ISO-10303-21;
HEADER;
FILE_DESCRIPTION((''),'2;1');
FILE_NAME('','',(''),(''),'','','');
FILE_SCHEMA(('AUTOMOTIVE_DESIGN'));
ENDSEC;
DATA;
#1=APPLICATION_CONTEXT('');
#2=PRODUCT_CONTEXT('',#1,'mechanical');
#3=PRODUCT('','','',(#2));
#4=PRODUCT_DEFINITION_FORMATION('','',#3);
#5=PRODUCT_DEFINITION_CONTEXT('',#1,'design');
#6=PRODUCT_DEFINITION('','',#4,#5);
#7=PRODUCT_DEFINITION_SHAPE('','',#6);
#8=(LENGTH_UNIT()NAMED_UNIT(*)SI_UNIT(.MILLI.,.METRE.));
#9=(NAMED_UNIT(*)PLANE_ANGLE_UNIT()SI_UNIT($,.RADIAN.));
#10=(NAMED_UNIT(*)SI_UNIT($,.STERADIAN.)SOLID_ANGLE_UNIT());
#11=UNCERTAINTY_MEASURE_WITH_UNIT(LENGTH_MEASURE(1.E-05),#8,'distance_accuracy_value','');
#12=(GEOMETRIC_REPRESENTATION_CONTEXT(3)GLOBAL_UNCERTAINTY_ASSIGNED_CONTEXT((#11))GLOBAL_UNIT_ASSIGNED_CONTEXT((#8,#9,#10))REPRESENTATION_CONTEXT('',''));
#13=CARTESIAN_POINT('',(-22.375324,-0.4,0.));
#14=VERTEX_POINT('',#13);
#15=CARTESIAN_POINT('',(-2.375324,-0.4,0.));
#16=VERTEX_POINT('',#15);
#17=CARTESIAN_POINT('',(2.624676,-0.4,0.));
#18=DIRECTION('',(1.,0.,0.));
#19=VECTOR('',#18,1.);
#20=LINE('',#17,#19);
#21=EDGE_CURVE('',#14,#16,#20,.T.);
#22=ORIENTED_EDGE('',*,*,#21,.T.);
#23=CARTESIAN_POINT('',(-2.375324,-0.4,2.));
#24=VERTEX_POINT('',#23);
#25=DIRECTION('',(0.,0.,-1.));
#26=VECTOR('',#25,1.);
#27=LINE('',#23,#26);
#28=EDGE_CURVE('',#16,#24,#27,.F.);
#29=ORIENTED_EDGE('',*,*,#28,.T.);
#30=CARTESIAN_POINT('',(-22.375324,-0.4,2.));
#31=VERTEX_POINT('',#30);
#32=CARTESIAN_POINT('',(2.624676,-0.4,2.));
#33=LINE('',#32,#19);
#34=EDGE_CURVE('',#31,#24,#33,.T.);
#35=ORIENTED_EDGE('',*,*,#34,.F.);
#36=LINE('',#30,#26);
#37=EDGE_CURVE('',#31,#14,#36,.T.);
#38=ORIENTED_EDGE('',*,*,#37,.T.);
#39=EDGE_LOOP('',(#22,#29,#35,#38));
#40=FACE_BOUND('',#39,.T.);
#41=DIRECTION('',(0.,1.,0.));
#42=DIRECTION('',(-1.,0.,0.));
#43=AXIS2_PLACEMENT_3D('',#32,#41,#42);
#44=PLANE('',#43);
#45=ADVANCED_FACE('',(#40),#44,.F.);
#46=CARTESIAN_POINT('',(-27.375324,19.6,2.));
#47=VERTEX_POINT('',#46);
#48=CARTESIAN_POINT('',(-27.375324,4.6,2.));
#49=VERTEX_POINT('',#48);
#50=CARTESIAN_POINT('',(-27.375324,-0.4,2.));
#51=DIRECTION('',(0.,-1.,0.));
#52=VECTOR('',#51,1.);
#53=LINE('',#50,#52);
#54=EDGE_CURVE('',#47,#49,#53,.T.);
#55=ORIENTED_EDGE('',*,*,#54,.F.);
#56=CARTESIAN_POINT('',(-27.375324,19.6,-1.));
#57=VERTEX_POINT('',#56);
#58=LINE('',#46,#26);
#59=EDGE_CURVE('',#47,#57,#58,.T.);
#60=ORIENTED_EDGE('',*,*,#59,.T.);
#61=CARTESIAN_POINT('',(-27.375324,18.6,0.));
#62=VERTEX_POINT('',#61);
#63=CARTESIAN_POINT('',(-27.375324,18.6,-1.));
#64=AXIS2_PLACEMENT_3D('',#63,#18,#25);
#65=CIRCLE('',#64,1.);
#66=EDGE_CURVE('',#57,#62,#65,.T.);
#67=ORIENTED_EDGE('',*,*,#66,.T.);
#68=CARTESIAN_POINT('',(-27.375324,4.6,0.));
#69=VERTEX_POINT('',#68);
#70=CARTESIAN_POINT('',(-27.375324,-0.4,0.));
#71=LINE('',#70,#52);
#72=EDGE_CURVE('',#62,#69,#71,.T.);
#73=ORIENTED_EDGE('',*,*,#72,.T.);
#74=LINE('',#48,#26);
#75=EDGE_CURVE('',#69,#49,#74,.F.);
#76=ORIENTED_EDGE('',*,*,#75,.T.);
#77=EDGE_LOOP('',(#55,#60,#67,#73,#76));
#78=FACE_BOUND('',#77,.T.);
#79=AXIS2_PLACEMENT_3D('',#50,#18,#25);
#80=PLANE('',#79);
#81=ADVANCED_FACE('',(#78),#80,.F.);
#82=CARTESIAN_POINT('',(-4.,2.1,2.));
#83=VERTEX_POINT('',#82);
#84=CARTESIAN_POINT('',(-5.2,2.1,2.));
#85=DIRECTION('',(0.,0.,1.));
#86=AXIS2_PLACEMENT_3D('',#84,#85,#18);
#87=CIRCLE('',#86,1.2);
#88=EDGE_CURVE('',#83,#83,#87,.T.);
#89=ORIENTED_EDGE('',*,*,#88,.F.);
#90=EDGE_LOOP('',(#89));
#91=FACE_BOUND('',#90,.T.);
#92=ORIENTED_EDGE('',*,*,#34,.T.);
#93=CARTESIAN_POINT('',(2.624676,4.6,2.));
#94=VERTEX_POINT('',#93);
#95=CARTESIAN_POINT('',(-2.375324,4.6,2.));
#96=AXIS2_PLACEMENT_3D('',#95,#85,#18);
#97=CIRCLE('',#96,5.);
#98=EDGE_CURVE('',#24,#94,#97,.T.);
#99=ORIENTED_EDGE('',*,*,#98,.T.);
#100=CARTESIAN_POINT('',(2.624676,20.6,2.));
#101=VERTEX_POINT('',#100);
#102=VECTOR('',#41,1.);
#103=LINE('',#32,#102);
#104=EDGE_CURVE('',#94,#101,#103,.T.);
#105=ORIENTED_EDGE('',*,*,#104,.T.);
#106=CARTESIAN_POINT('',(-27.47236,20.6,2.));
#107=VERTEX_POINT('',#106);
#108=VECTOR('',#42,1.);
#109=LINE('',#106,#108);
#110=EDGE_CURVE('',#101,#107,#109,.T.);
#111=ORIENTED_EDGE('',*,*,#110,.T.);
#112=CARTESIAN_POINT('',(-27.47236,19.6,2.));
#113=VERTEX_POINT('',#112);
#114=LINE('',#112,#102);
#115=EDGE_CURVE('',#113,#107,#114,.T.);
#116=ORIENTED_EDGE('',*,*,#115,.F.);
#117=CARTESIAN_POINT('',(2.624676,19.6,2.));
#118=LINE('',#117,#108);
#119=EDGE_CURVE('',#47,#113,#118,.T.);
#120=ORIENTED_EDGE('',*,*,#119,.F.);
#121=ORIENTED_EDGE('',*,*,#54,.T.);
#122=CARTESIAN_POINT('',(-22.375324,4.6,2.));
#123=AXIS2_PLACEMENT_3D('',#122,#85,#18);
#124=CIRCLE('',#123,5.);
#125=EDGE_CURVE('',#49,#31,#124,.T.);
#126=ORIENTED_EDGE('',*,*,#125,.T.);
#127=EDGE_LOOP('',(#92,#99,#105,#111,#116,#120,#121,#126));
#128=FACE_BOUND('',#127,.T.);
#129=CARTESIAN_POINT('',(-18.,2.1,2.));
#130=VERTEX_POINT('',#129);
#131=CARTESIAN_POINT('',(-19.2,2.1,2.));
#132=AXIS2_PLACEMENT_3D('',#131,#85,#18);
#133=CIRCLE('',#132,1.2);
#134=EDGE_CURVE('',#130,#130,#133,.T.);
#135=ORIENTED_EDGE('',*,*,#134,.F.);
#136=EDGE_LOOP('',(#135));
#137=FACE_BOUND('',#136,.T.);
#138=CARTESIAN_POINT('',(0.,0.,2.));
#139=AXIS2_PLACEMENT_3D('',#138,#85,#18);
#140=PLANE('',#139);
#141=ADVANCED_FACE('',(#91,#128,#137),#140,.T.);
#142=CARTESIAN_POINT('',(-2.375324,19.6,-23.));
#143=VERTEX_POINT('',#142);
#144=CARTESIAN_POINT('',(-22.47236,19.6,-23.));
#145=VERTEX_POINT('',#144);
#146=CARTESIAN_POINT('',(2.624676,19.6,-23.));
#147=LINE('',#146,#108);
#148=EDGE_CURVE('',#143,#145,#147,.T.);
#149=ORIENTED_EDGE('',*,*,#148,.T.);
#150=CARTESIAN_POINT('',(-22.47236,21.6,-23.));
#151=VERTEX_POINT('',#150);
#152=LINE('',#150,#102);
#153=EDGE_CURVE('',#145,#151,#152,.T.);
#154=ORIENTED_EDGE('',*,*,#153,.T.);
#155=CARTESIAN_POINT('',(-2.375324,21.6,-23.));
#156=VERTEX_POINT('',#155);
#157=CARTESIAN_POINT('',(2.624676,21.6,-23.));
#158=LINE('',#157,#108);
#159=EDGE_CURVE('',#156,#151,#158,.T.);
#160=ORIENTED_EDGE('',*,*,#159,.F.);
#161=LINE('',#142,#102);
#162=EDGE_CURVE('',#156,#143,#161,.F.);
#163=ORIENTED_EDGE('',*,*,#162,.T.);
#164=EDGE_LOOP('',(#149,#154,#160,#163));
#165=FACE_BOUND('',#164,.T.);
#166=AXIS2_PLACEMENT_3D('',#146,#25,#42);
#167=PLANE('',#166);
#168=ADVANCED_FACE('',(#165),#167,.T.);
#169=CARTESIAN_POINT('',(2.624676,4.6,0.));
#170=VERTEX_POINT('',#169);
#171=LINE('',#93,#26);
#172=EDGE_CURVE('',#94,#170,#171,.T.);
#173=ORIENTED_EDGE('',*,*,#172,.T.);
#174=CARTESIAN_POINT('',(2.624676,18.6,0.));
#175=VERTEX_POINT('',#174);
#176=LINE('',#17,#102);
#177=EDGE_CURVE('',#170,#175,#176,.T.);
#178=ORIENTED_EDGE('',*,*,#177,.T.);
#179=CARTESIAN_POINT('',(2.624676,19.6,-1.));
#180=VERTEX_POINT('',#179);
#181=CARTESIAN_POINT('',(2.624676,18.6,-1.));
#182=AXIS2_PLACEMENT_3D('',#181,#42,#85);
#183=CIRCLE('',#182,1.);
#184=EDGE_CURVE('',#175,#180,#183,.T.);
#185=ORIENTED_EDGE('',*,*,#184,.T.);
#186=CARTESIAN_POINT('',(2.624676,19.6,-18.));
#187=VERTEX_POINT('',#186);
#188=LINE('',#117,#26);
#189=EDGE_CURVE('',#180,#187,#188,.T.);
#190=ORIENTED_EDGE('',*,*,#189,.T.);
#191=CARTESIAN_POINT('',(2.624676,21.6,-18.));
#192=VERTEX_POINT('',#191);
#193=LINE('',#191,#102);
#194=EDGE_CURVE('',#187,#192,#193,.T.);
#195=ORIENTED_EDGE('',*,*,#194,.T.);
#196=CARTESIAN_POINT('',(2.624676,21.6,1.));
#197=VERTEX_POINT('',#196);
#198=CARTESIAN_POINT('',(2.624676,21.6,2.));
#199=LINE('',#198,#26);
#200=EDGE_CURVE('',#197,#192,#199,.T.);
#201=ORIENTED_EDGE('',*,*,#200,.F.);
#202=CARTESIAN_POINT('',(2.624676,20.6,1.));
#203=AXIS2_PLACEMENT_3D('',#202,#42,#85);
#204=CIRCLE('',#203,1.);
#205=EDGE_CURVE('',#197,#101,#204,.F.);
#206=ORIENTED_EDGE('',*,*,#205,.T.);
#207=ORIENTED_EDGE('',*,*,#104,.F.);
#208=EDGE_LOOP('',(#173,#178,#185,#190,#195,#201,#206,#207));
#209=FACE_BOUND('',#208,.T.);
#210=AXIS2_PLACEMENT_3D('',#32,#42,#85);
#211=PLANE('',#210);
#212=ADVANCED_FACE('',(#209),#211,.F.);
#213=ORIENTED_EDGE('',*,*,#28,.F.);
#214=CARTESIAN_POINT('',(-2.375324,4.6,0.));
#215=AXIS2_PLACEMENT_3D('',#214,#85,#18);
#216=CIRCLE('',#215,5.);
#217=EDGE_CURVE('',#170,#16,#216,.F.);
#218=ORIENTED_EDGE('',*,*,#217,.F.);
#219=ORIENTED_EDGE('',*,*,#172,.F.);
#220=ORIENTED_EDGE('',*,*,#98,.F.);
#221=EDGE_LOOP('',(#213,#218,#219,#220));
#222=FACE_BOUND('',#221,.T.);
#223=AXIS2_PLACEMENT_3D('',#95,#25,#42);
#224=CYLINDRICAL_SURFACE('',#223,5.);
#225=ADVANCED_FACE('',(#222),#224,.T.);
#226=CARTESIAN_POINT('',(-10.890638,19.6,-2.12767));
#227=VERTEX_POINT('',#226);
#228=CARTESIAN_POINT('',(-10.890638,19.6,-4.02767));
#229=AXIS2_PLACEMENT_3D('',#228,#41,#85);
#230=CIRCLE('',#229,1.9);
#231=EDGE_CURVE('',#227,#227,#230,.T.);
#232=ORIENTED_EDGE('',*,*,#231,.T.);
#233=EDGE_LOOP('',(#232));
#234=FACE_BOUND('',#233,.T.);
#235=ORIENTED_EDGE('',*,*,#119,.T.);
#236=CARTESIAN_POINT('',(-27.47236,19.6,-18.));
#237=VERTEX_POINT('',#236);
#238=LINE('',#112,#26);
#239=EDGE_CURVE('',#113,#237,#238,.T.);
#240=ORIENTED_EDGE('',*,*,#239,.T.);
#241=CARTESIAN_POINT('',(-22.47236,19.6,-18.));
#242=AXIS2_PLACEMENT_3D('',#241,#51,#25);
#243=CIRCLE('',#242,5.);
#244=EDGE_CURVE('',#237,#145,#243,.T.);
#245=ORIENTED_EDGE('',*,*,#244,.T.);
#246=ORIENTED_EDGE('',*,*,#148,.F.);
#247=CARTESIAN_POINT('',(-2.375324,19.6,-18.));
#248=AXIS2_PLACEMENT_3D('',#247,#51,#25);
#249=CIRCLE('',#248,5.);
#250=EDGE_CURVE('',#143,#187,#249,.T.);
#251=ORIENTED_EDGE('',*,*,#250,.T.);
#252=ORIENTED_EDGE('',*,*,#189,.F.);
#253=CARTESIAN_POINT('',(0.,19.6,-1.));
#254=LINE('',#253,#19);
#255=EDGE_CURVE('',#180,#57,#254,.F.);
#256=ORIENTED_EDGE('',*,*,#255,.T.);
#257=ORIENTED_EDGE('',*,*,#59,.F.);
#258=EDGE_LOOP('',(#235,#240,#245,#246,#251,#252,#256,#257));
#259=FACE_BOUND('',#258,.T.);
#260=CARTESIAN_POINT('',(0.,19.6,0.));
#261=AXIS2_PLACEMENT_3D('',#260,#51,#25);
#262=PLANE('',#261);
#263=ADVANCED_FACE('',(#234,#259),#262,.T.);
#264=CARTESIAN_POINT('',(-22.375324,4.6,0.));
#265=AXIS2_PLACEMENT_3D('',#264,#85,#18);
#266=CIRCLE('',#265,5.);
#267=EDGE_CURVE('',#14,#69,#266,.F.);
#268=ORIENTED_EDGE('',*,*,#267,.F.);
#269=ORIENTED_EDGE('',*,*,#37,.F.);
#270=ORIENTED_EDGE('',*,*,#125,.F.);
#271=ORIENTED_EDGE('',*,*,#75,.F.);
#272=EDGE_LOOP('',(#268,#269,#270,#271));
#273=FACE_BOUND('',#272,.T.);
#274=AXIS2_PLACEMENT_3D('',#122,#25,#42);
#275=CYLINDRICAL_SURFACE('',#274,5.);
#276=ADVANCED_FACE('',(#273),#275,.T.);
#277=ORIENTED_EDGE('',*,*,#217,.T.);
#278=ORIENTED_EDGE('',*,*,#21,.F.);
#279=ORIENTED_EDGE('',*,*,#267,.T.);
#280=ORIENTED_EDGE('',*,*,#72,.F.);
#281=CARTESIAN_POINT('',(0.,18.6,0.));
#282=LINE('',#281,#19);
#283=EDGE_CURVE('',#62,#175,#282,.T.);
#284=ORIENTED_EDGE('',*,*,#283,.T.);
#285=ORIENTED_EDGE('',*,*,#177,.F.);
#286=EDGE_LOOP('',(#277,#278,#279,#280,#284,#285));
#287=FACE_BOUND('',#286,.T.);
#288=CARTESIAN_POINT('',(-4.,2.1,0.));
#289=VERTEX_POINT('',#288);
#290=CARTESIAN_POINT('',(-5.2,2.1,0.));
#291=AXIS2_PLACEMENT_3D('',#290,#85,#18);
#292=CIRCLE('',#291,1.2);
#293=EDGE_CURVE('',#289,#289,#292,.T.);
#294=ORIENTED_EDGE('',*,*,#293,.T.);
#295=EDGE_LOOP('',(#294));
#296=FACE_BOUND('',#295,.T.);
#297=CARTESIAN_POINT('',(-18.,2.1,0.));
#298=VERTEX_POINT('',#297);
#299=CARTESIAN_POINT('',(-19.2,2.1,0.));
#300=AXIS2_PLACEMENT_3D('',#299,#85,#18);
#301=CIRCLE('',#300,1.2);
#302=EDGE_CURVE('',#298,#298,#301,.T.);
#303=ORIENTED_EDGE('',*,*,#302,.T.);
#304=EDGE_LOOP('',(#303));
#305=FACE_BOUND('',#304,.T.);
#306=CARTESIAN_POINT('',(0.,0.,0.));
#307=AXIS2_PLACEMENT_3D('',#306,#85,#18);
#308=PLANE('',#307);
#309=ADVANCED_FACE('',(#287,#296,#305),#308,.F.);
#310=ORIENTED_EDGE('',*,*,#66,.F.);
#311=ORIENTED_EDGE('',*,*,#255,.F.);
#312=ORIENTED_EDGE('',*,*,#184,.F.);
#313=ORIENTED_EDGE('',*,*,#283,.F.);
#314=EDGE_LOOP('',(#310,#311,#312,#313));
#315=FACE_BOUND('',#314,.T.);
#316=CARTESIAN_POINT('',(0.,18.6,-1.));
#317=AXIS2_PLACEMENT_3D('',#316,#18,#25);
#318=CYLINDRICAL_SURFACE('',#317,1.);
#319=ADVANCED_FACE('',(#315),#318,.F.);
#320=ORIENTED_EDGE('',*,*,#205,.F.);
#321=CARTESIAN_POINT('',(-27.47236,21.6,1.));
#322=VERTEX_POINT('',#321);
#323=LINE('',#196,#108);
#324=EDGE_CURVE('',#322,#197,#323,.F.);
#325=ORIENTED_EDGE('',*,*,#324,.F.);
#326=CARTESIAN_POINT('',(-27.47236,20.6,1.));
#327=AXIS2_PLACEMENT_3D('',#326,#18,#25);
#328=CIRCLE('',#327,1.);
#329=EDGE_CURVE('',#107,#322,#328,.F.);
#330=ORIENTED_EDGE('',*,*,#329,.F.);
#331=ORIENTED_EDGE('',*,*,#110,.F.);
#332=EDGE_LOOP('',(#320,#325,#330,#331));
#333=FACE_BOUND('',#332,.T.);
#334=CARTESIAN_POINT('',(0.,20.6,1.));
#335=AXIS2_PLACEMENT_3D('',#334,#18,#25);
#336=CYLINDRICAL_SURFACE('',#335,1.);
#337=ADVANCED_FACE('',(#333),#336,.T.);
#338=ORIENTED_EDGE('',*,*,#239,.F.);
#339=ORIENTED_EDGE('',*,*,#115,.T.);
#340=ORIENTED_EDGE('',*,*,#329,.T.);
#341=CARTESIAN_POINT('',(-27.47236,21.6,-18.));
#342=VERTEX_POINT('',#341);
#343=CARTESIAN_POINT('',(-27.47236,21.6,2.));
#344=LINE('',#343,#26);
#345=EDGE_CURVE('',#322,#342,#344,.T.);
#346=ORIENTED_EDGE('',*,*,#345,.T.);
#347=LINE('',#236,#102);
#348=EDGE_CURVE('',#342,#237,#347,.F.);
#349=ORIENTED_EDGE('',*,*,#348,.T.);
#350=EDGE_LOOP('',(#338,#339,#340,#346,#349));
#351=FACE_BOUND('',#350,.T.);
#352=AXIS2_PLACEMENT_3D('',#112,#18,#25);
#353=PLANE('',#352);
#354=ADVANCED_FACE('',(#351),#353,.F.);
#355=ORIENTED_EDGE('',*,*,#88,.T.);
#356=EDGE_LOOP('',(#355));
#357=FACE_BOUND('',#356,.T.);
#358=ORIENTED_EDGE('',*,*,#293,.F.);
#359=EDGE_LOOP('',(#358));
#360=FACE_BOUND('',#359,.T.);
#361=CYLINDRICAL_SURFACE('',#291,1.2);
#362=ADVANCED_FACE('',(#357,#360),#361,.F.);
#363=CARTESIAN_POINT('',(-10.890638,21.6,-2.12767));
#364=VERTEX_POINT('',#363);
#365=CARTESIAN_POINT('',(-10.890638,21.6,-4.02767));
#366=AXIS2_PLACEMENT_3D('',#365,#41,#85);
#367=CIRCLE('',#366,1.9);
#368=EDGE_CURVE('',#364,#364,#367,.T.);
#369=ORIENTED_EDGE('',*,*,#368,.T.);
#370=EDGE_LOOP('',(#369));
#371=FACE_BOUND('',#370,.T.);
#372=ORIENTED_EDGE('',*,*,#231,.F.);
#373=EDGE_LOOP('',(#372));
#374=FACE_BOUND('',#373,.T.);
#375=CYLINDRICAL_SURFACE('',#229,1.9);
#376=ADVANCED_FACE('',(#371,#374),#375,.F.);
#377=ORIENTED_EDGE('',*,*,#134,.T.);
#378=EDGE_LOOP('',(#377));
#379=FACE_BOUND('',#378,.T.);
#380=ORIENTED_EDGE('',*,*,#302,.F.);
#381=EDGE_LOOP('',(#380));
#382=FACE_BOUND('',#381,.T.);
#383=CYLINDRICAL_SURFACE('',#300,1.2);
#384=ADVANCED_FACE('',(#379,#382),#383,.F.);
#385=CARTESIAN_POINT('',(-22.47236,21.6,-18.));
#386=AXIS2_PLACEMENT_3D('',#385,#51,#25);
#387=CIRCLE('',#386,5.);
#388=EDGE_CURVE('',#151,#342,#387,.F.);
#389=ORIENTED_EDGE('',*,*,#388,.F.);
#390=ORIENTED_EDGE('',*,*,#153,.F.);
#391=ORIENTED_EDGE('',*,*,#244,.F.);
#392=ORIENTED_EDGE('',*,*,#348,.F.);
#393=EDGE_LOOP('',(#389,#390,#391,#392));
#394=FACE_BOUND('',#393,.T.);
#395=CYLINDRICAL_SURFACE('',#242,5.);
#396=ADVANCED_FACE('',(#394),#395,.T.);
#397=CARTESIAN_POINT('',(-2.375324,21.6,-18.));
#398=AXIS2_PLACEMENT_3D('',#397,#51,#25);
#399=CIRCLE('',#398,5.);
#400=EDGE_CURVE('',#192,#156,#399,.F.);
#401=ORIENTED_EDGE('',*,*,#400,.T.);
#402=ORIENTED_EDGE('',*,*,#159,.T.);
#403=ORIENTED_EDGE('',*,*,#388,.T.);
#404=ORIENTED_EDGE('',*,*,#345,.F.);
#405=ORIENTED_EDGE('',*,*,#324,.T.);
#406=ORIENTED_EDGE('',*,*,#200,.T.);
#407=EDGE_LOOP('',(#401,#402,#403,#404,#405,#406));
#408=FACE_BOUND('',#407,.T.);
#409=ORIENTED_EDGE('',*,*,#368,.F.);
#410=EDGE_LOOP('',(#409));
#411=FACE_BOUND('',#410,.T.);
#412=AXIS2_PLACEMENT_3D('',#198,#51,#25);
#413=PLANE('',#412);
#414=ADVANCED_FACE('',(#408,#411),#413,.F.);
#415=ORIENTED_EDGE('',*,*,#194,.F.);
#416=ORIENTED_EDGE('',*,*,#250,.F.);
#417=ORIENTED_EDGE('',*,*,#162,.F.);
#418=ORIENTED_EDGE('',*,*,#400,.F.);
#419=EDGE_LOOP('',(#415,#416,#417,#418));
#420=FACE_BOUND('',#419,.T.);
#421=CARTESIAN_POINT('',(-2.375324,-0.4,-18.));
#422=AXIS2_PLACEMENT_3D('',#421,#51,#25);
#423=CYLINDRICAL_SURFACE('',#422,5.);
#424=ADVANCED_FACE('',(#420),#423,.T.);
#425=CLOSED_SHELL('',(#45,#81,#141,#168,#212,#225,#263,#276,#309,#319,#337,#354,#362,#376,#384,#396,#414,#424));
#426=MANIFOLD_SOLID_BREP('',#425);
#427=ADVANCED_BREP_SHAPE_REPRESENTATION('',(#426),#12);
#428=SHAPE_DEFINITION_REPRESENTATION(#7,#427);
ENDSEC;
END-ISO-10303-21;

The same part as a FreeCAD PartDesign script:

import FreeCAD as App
import Part
import Sketcher
from FreeCAD import Vector


def edges_at(feature, points):
    """Names of the edges that pass closest to the given points."""
    edges = feature.Shape.Edges
    near = lambda p: min(range(len(edges)), key=lambda i: edges[i].distToShape(Part.Vertex(*p))[0])
    return sorted({f"Edge{near(p) + 1}" for p in points})

doc = App.newDocument("Part")
body = doc.addObject("PartDesign::Body", "Body")

# Sketch on XY plane
sketch1 = body.newObject("Sketcher::SketchObject", "Sketch")
sketch1.AttachmentSupport = (doc.getObject("XY_Plane"), [""])
sketch1.MapMode = "FlatFace"
sketch1.addGeometry([
    Part.LineSegment(Vector(-27, 22, 0), Vector(-27, 0, 0)),
    Part.LineSegment(Vector(-27, 0, 0), Vector(3, 0, 0)),
    Part.LineSegment(Vector(3, 0, 0), Vector(3, 22, 0)),
    Part.LineSegment(Vector(3, 22, 0), Vector(-27, 22, 0)),
], False)
sketch1.addConstraint([
    Sketcher.Constraint("Coincident", 0, 2, 1, 1),
    Sketcher.Constraint("Coincident", 1, 2, 2, 1),
    Sketcher.Constraint("Coincident", 2, 2, 3, 1),
    Sketcher.Constraint("Coincident", 3, 2, 0, 1),
    Sketcher.Constraint("Vertical", 0),
    Sketcher.Constraint("Horizontal", 1),
    Sketcher.Constraint("Vertical", 2),
    Sketcher.Constraint("Horizontal", 3),
    Sketcher.Constraint("DistanceX", 1, 1, 1, 2, 30.0),
    Sketcher.Constraint("DistanceY", 0, 2, 0, 1, 22.0),
    Sketcher.Constraint("DistanceY", 0, 2, -1, 1, 0.4),
    Sketcher.Constraint("DistanceX", 0, 2, -1, 1, 27.375324),
])
pad1 = body.newObject("PartDesign::Pad", "Pad")
pad1.Profile = sketch1
pad1.Length = 2

# Sketch on XZ plane
sketch2 = body.newObject("Sketcher::SketchObject", "Sketch001")
sketch2.AttachmentSupport = (doc.getObject("XZ_Plane"), [""])
sketch2.MapMode = "FlatFace"
sketch2.AttachmentOffset = App.Placement(Vector(0, 0, -21.6), App.Rotation())
sketch2.addGeometry([
    Part.LineSegment(Vector(-27, -23, 0), Vector(-27, 2, 0)),
    Part.LineSegment(Vector(-27, 2, 0), Vector(3, 2, 0)),
    Part.LineSegment(Vector(3, 2, 0), Vector(3, -23, 0)),
    Part.LineSegment(Vector(3, -23, 0), Vector(-27, -23, 0)),
], False)
sketch2.addConstraint([
    Sketcher.Constraint("Coincident", 0, 2, 1, 1),
    Sketcher.Constraint("Coincident", 1, 2, 2, 1),
    Sketcher.Constraint("Coincident", 2, 2, 3, 1),
    Sketcher.Constraint("Coincident", 3, 2, 0, 1),
    Sketcher.Constraint("Vertical", 0),
    Sketcher.Constraint("Horizontal", 1),
    Sketcher.Constraint("Vertical", 2),
    Sketcher.Constraint("Horizontal", 3),
    Sketcher.Constraint("DistanceY", 0, 1, 0, 2, 25.0),
    Sketcher.Constraint("DistanceY", -1, 1, 0, 2, 2.0),
    Sketcher.Constraint("DistanceX", 1, 1, 1, 2, 30.097036),
    Sketcher.Constraint("DistanceX", 0, 2, -1, 1, 27.47236),
])
pad2 = body.newObject("PartDesign::Pad", "Pad001")
pad2.Profile = sketch2
pad2.Length = 2

# Sketch on XY plane
sketch3 = body.newObject("Sketcher::SketchObject", "Sketch002")
sketch3.AttachmentSupport = (doc.getObject("XY_Plane"), [""])
sketch3.MapMode = "FlatFace"
sketch3.AttachmentOffset = App.Placement(Vector(0, 0, 2), App.Rotation())
sketch3.addGeometry([
    Part.Circle(Vector(-5.2, 2.1, 0), Vector(0, 0, 1), 1.2),
    Part.Circle(Vector(-19.2, 2.1, 0), Vector(0, 0, 1), 1.2),
], False)
sketch3.addConstraint([
    Sketcher.Constraint("Equal", 0, 1),
    Sketcher.Constraint("Horizontal", 0, 3, 1, 3),
    Sketcher.Constraint("Diameter", 0, 2.4),
    Sketcher.Constraint("DistanceX", 1, 3, 0, 3, 14.0),
    Sketcher.Constraint("DistanceX", 0, 3, -1, 1, 5.2),
    Sketcher.Constraint("DistanceY", -1, 1, 0, 3, 2.1),
])
pocket1 = body.newObject("PartDesign::Pocket", "Pocket")
pocket1.Profile = sketch3
pocket1.Length = 2
doc.recompute()

fillet = body.newObject("PartDesign::Fillet", "Fillet")
fillet.Base = (pocket1, edges_at(pocket1, [(-12.375, 19.6, 0)]))
fillet.Radius = 1
doc.recompute()

fillet2 = body.newObject("PartDesign::Fillet", "Fillet001")
fillet2.Base = (fillet, edges_at(fillet, [(-12.424, 21.6, 2)]))
fillet2.Radius = 1
doc.recompute()

fillet3 = body.newObject("PartDesign::Fillet", "Fillet002")
fillet3.Base = (fillet2, edges_at(fillet2, [(2.625, -0.4, 1), (-27.375, -0.4, 1)]))
fillet3.Radius = 5
doc.recompute()

fillet4 = body.newObject("PartDesign::Fillet", "Fillet003")
fillet4.Base = (fillet3, edges_at(fillet3, [(2.625, 20.6, -23), (-27.472, 20.6, -23)]))
fillet4.Radius = 5

# Sketch on XZ plane
sketch4 = body.newObject("Sketcher::SketchObject", "Sketch003")
sketch4.AttachmentSupport = (doc.getObject("XZ_Plane"), [""])
sketch4.MapMode = "FlatFace"
sketch4.AttachmentOffset = App.Placement(Vector(0, 0, -21.6), App.Rotation())
sketch4.addGeometry(Part.Circle(Vector(-10.9, -4, 0), Vector(0, 0, 1), 1.9), False)
sketch4.addConstraint([
    Sketcher.Constraint("Diameter", 0, 3.8),
    Sketcher.Constraint("DistanceX", 0, 3, -1, 1, 10.890638),
    Sketcher.Constraint("DistanceY", 0, 3, -1, 1, 4.02767),
])
pocket2 = body.newObject("PartDesign::Pocket", "Pocket001")
pocket2.Profile = sketch4
pocket2.Length = 2
pocket2.Reversed = True

doc.recompute()
